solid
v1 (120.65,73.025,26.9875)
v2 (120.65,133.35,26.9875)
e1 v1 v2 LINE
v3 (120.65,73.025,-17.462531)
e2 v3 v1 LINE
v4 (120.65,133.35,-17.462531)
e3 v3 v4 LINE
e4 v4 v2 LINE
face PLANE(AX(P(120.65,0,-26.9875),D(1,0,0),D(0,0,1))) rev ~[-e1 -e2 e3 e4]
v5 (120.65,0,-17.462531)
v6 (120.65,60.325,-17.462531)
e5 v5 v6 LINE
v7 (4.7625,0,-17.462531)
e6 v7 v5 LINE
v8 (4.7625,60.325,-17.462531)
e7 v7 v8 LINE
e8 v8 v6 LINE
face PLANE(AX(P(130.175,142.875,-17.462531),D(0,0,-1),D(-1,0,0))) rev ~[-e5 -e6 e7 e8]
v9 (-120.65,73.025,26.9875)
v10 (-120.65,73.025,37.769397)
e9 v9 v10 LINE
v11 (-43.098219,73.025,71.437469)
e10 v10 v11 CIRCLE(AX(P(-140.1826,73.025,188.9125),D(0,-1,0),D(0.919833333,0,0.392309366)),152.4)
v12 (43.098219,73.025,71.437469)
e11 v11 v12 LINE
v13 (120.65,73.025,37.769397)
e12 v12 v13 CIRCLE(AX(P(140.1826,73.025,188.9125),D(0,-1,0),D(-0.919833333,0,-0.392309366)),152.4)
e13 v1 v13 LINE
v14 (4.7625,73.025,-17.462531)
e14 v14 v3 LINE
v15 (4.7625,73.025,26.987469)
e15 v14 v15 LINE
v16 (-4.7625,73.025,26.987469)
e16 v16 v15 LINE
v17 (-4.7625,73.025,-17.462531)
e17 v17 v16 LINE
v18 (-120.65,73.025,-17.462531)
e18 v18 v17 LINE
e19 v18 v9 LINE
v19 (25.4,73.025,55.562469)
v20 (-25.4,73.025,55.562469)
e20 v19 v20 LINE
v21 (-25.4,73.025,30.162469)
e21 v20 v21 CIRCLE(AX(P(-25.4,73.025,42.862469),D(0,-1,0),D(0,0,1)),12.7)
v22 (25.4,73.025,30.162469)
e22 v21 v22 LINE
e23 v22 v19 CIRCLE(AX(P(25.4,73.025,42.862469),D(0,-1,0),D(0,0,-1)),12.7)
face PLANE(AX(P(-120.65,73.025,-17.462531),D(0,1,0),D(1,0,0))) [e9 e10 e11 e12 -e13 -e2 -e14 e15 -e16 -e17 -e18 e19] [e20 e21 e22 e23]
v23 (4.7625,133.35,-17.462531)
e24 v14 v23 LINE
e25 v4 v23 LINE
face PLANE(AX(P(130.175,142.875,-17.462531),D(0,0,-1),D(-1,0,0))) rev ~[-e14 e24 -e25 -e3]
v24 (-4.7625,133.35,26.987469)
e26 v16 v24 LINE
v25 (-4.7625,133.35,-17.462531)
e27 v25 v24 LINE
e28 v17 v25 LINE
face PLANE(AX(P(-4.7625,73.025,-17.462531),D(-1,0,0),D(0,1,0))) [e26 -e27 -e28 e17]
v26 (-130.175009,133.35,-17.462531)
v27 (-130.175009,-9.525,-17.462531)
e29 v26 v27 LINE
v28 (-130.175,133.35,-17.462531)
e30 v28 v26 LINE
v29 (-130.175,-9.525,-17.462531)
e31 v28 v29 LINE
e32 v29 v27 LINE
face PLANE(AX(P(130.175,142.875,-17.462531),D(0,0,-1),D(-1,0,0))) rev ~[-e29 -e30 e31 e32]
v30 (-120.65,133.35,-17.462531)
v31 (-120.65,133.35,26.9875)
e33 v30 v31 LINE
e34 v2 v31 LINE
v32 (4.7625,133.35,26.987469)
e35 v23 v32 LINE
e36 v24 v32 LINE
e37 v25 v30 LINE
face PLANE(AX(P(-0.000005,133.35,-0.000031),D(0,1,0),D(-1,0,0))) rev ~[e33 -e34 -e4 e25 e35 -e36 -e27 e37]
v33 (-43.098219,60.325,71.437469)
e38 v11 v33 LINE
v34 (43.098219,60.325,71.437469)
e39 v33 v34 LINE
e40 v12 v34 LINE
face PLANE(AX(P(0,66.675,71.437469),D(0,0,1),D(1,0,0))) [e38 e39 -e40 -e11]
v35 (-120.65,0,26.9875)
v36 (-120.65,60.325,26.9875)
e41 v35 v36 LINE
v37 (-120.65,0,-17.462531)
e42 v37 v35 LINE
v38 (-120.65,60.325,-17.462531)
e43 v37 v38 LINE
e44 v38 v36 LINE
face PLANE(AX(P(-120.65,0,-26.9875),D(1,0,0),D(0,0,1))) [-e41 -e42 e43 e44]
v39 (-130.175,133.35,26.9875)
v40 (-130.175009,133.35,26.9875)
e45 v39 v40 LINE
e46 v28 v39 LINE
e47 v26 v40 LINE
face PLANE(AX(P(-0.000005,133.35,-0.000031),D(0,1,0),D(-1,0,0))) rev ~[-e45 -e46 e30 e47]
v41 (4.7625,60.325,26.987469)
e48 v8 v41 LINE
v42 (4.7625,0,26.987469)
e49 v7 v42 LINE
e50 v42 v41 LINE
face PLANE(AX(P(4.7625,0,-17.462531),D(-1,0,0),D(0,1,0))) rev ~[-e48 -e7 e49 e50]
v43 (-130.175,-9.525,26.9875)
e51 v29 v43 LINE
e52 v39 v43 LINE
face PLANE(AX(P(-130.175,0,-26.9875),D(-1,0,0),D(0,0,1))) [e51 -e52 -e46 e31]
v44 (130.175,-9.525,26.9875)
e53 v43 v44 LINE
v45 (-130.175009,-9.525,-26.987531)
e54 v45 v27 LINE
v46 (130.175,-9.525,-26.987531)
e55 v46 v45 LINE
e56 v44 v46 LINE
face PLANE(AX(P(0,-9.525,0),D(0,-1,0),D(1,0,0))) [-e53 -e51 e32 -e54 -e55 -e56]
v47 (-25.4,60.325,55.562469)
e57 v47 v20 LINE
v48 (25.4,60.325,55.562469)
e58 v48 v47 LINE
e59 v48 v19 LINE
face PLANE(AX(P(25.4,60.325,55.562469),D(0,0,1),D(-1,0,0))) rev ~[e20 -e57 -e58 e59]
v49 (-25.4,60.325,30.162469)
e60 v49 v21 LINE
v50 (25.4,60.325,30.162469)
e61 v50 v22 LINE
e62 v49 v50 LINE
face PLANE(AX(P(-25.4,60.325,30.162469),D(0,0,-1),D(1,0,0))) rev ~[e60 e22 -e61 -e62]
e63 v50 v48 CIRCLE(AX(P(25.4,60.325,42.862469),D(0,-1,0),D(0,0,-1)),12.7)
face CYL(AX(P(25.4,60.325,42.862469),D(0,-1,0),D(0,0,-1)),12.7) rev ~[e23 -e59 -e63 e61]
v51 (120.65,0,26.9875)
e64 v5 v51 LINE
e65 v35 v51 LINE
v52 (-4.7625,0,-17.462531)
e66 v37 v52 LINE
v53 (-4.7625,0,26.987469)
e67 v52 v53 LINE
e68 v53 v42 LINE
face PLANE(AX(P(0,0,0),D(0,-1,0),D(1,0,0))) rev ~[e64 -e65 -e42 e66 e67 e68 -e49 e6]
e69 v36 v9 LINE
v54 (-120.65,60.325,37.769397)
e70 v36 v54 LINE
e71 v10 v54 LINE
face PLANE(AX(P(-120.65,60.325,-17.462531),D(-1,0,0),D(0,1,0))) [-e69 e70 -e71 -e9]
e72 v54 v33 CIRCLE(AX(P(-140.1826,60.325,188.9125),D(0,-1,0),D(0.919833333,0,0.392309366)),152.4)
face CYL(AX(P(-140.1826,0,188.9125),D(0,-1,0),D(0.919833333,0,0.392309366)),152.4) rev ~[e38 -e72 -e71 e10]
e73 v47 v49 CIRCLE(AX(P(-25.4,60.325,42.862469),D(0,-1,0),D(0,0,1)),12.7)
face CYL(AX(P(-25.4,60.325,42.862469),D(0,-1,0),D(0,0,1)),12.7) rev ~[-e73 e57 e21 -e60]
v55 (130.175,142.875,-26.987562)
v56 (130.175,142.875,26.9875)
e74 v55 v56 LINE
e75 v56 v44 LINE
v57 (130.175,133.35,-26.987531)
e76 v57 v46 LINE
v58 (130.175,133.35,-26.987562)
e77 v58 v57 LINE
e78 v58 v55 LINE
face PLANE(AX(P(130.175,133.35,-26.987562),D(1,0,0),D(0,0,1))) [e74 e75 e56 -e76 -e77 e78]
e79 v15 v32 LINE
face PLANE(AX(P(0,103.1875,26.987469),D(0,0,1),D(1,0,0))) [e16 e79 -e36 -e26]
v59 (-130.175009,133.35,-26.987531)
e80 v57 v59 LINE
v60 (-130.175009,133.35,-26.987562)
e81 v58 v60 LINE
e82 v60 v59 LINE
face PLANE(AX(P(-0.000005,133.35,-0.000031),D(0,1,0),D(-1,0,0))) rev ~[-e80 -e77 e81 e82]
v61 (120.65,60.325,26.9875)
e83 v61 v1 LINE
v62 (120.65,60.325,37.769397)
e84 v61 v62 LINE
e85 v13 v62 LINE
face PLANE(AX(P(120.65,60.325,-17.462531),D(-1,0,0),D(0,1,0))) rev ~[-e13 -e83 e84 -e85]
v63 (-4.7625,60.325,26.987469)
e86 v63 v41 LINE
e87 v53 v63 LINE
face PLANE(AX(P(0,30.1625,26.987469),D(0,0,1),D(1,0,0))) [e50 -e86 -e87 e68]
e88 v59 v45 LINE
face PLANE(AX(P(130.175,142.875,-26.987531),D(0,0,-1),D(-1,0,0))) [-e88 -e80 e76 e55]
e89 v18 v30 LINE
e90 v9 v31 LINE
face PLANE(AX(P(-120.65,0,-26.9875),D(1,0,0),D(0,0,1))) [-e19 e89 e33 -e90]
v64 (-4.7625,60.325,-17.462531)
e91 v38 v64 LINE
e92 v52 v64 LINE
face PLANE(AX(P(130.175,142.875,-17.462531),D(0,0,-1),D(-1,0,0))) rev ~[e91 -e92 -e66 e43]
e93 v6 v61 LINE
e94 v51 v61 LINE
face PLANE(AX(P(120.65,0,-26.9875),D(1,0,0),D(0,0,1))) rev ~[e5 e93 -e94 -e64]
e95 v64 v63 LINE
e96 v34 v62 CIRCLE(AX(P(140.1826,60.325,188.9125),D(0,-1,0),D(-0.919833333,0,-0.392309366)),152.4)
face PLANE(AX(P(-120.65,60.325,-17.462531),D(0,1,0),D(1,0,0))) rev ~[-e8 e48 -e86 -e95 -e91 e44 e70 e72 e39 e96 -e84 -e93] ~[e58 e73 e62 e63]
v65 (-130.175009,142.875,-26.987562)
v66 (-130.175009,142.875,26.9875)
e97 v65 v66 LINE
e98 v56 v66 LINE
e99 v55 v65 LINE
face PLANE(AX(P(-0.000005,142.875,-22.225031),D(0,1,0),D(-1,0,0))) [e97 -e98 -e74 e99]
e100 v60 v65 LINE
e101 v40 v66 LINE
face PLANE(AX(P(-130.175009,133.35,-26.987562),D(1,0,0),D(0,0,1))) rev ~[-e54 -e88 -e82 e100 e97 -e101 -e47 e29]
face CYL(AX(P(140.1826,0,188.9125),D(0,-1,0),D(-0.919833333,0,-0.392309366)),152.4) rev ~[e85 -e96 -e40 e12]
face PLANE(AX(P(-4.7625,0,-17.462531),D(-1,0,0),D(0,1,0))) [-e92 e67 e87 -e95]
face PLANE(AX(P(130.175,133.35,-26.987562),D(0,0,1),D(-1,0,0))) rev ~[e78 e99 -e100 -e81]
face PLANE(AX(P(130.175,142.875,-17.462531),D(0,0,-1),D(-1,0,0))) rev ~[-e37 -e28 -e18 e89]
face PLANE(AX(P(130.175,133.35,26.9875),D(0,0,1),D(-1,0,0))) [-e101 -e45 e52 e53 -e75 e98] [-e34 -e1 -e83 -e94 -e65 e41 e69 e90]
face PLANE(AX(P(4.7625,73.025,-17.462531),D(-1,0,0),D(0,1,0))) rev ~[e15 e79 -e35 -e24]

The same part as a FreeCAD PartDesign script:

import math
import FreeCAD as App
import Part
import Sketcher

V = App.Vector
Q = App.Units.Quantity

doc = App.newDocument("Part")
body = doc.addObject("PartDesign::Body", "Body")

sketch1 = body.newObject("Sketcher::SketchObject", "Sketch")
sketch1.AttachmentSupport = (doc.getObject("XZ_Plane"), [""])
sketch1.MapMode = "FlatFace"
sketch1.addGeometry([
    Part.LineSegment(V(-130.175, 26.9875, 0), V(-130.175, -26.9875, 0)),
    Part.LineSegment(V(-130.175, -26.9875, 0), V(130.175, -26.9875, 0)),
    Part.LineSegment(V(130.175, -26.9875, 0), V(130.175, 26.9875, 0)),
    Part.LineSegment(V(130.175, 26.9875, 0), V(-130.175, 26.9875, 0)),
], False)
sketch1.addConstraint([
    Sketcher.Constraint("Coincident", 0, 2, 1, 1),
    Sketcher.Constraint("Coincident", 1, 2, 2, 1),
    Sketcher.Constraint("Coincident", 2, 2, 3, 1),
    Sketcher.Constraint("Coincident", 3, 2, 0, 1),
    Sketcher.Constraint("Vertical", 0),
    Sketcher.Constraint("Horizontal", 1),
    Sketcher.Constraint("Vertical", 2),
    Sketcher.Constraint("Horizontal", 3),
    Sketcher.Constraint("Symmetric", 0, 2, 2, 2, -1, 1),
    Sketcher.Constraint("DistanceX", 1, 1, 1, 2, Q("10.25 in")),
    Sketcher.Constraint("DistanceY", 0, 2, 0, 1, Q("2.125 in")),
])
pad1 = body.newObject("PartDesign::Pad", "Pad")
pad1.Profile = sketch1
pad1.Length = Q("0.375 in")

sketch2 = body.newObject("Sketcher::SketchObject", "Sketch001")
sketch2.AttachmentSupport = (doc.getObject("XZ_Plane"), [""])
sketch2.MapMode = "FlatFace"
sketch2.addGeometry([
    Part.LineSegment(V(130.175, 26.9875, 0), V(130.175, -26.9875, 0)),
    Part.LineSegment(V(130.175, -26.9875, 0), V(120.65, -26.9875, 0)),
    Part.LineSegment(V(120.65, -26.9875, 0), V(120.65, 26.9875, 0)),
    Part.LineSegment(V(120.65, 26.9875, 0), V(130.175, 26.9875, 0)),
    Part.LineSegment(V(-120.65, 26.9875, 0), V(-120.65, -26.9875, 0)),
    Part.LineSegment(V(-120.65, -26.9875, 0), V(-130.175, -26.9875, 0)),
    Part.LineSegment(V(-130.175, -26.9875, 0), V(-130.175, 26.9875, 0)),
    Part.LineSegment(V(-130.175, 26.9875, 0), V(-120.65, 26.9875, 0)),
], False)
sketch2.addConstraint([
    Sketcher.Constraint("Coincident", 0, 2, 1, 1),
    Sketcher.Constraint("Coincident", 1, 2, 2, 1),
    Sketcher.Constraint("Coincident", 2, 2, 3, 1),
    Sketcher.Constraint("Coincident", 3, 2, 0, 1),
    Sketcher.Constraint("Coincident", 4, 2, 5, 1),
    Sketcher.Constraint("Coincident", 5, 2, 6, 1),
    Sketcher.Constraint("Coincident", 6, 2, 7, 1),
    Sketcher.Constraint("Coincident", 7, 2, 4, 1),
    Sketcher.Constraint("Vertical", 0),
    Sketcher.Constraint("Horizontal", 1),
    Sketcher.Constraint("Vertical", 2),
    Sketcher.Constraint("Horizontal", 3),
    Sketcher.Constraint("Vertical", 4),
    Sketcher.Constraint("Horizontal", 5),
    Sketcher.Constraint("Vertical", 6),
    Sketcher.Constraint("Horizontal", 7),
    Sketcher.Constraint("Symmetric", 2, 2, 4, 2, -1, 1),
    Sketcher.Constraint("Symmetric", 0, 2, 6, 2, -1, 1),
    Sketcher.Constraint("Horizontal", 1, 2, 4, 2),
    Sketcher.Constraint("DistanceX", 4, 2, 1, 2, Q("9.5 in")),
    Sketcher.Constraint("DistanceX", 1, 2, 1, 1, Q("0.375 in")),
    Sketcher.Constraint("DistanceY", 0, 2, 0, 1, Q("2.125 in")),
])
pad2 = body.newObject("PartDesign::Pad", "Pad001")
pad2.Profile = sketch2
pad2.Length = Q("5.25 in")
pad2.Reversed = True

sketch3 = body.newObject("Sketcher::SketchObject", "Sketch002")
sketch3.AttachmentSupport = (doc.getObject("XZ_Plane"), [""])
sketch3.MapMode = "FlatFace"
sketch3.AttachmentOffset = App.Placement(V(0, 0, -5.25 * 25.4), App.Rotation())
sketch3.addGeometry([
    Part.LineSegment(V(130.175, 26.9875, 0), V(130.175, -26.987562, 0)),
    Part.LineSegment(V(130.175, -26.987562, 0), V(-130.175009, -26.987562, 0)),
    Part.LineSegment(V(-130.175009, -26.987562, 0), V(-130.175009, 26.9875, 0)),
    Part.LineSegment(V(-130.175009, 26.9875, 0), V(130.175, 26.9875, 0)),
], False)
sketch3.addConstraint([
    Sketcher.Constraint("Coincident", 0, 2, 1, 1),
    Sketcher.Constraint("Coincident", 1, 2, 2, 1),
    Sketcher.Constraint("Coincident", 2, 2, 3, 1),
    Sketcher.Constraint("Coincident", 3, 2, 0, 1),
    Sketcher.Constraint("Vertical", 0),
    Sketcher.Constraint("Horizontal", 1),
    Sketcher.Constraint("Vertical", 2),
    Sketcher.Constraint("Horizontal", 3),
    Sketcher.Constraint("DistanceX", -1, 1, 0, 2, Q("5.125 in")),
    Sketcher.Constraint("DistanceY", -1, 1, 2, 2, Q("1.0625 in")),
    Sketcher.Constraint("DistanceX", 1, 2, 1, 1, Q("260.350009 mm")),
    Sketcher.Constraint("DistanceY", 0, 2, 0, 1, Q("53.975062 mm")),
])
pad3 = body.newObject("PartDesign::Pad", "Pad002")
pad3.Profile = sketch3
pad3.Length = Q("0.375 in")
pad3.Reversed = True

sketch4 = body.newObject("Sketcher::SketchObject", "Sketch003")
sketch4.AttachmentSupport = (doc.getObject("XZ_Plane"), [""])
sketch4.MapMode = "FlatFace"
sketch4.AttachmentOffset = App.Placement(V(0, 0, -5.625 * 25.4), App.Rotation())
sketch4.addGeometry([
    Part.LineSegment(V(130.175, -17.462531, 0), V(130.175, -26.987531, 0)),
    Part.LineSegment(V(130.175, -26.987531, 0), V(-130.175009, -26.987531, 0)),
    Part.LineSegment(V(-130.175009, -26.987531, 0), V(-130.175009, -17.462531, 0)),
    Part.LineSegment(V(-130.175009, -17.462531, 0), V(130.175, -17.462531, 0)),
], False)
sketch4.addConstraint([
    Sketcher.Constraint("Coincident", 0, 2, 1, 1),
    Sketcher.Constraint("Coincident", 1, 2, 2, 1),
    Sketcher.Constraint("Coincident", 2, 2, 3, 1),
    Sketcher.Constraint("Coincident", 3, 2, 0, 1),
    Sketcher.Constraint("Vertical", 0),
    Sketcher.Constraint("Horizontal", 1),
    Sketcher.Constraint("Vertical", 2),
    Sketcher.Constraint("Horizontal", 3),
    Sketcher.Constraint("DistanceY", 0, 2, 0, 1, Q("0.375 in")),
    Sketcher.Constraint("DistanceX", -1, 1, 0, 2, Q("5.125 in")),
    Sketcher.Constraint("DistanceX", 1, 2, 1, 1, Q("260.350009 mm")),
    Sketcher.Constraint("DistanceY", 0, 2, -1, 1, Q("26.987531 mm")),
])
pad4 = body.newObject("PartDesign::Pad", "Pad003")
pad4.Profile = sketch4
pad4.Length = Q("6 in")

sketch5 = body.newObject("Sketcher::SketchObject", "Sketch004")
sketch5.AttachmentSupport = (doc.getObject("XY_Plane"), [""])
sketch5.MapMode = "FlatFace"
sketch5.AttachmentOffset = App.Placement(V(0, 0, -17.462531), App.Rotation())
sketch5.addGeometry([
    Part.LineSegment(V(-120.65, 73.025, 0), V(-120.65, 60.325, 0)),
    Part.LineSegment(V(-120.65, 60.325, 0), V(120.65, 60.325, 0)),
    Part.LineSegment(V(120.65, 60.325, 0), V(120.65, 73.025, 0)),
    Part.LineSegment(V(120.65, 73.025, 0), V(-120.65, 73.025, 0)),
], False)
sketch5.addConstraint([
    Sketcher.Constraint("Coincident", 0, 2, 1, 1),
    Sketcher.Constraint("Coincident", 1, 2, 2, 1),
    Sketcher.Constraint("Coincident", 2, 2, 3, 1),
    Sketcher.Constraint("Coincident", 3, 2, 0, 1),
    Sketcher.Constraint("Vertical", 0),
    Sketcher.Constraint("Horizontal", 1),
    Sketcher.Constraint("Vertical", 2),
    Sketcher.Constraint("Horizontal", 3),
    Sketcher.Constraint("DistanceX", 1, 1, 1, 2, Q("9.5 in")),
    Sketcher.Constraint("DistanceY", 0, 2, 0, 1, Q("0.5 in")),
    Sketcher.Constraint("DistanceX", 0, 2, -1, 1, Q("4.75 in")),
    Sketcher.Constraint("DistanceY", -1, 1, 0, 2, Q("2.375 in")),
])
pad5 = body.newObject("PartDesign::Pad", "Pad004")
pad5.Profile = sketch5
pad5.Length = Q("3.5 in")

sketch6 = body.newObject("Sketcher::SketchObject", "Sketch005")
sketch6.AttachmentSupport = (doc.getObject("XZ_Plane"), [""])
sketch6.MapMode = "FlatFace"
sketch6.AttachmentOffset = App.Placement(V(0, 0, -2.375 * 25.4), App.Rotation())
sketch6.addGeometry([
    Part.LineSegment(V(25.4, 55.562469, 0), V(-25.4, 55.562469, 0)),
    Part.ArcOfCircle(Part.Circle(V(-25.4, 42.862469, 0), V(0, 0, 1), 12.7), math.radians(90), math.radians(270)),
    Part.LineSegment(V(-25.4, 30.162469, 0), V(25.4, 30.162469, 0)),
    Part.ArcOfCircle(Part.Circle(V(25.4, 42.862469, 0), V(0, 0, 1), 12.7), math.radians(-90), math.radians(90)),
], False)
sketch6.addConstraint([
    Sketcher.Constraint("Tangent", 0, 2, 1, 1),
    Sketcher.Constraint("Tangent", 1, 2, 2, 1),
    Sketcher.Constraint("Tangent", 2, 2, 3, 1),
    Sketcher.Constraint("Tangent", 3, 2, 0, 1),
    Sketcher.Constraint("Horizontal", 0),
    Sketcher.Constraint("Horizontal", 2),
    Sketcher.Constraint("Radius", 1, Q("0.5 in")),
    Sketcher.Constraint("DistanceX", 0, 2, 0, 1, Q("2 in")),
    Sketcher.Constraint("DistanceX", 1, 3, -1, 1, Q("1 in")),
    Sketcher.Constraint("DistanceY", -1, 1, 1, 3, Q("42.862469 mm")),
])
pocket1 = body.newObject("PartDesign::Pocket", "Pocket")
pocket1.Profile = sketch6
pocket1.Length = Q("0.5 in")

sketch7 = body.newObject("Sketcher::SketchObject", "Sketch006")
sketch7.AttachmentSupport = (doc.getObject("XZ_Plane"), [""])
sketch7.MapMode = "FlatFace"
sketch7.addGeometry([
    Part.ArcOfCircle(Part.Circle(V(140.1826, 188.9125, 0), V(0, 0, 1), 152.4), math.radians(156.901729), math.radians(203.098271)),
    Part.ArcOfCircle(Part.Circle(V(-140.1826, 188.9125, 0), V(0, 0, 1), 152.4), math.radians(23.098271), math.radians(336.901729)),
    Part.ArcOfCircle(Part.Circle(V(-140.1826, 188.9125, 0), V(0, 0, 1), 152.4), math.radians(-23.098271), math.radians(23.098271)),
    Part.ArcOfCircle(Part.Circle(V(140.1826, 188.9125, 0), V(0, 0, 1), 152.4), math.radians(-156.901729), math.radians(156.901729)),
], False)
sketch7.addConstraint([
    Sketcher.Constraint("Coincident", 0, 1, 1, 1),
    Sketcher.Constraint("Coincident", 1, 2, 0, 2),
    Sketcher.Constraint("Coincident", 2, 1, 3, 1),
    Sketcher.Constraint("Coincident", 3, 2, 2, 2),
    Sketcher.Constraint("Coincident", 2, 3, 1, 3),
    Sketcher.Constraint("Coincident", 3, 3, 0, 3),
    Sketcher.Constraint("Coincident", 2, 1, 1, 2),
    Sketcher.Constraint("Equal", 0, 1),
    Sketcher.Constraint("Symmetric", 0, 3, 1, 3, -2),
    Sketcher.Constraint("Radius", 0, Q("6 in")),
    Sketcher.Constraint("DistanceX", -1, 1, 0, 3, Q("5.519 in")),
    Sketcher.Constraint("DistanceY", -1, 1, 0, 3, Q("7.4375 in")),
])
pocket2 = body.newObject("PartDesign::Pocket", "Pocket001")
pocket2.Profile = sketch7
pocket2.Length = Q("4.02 in")

sketch8 = body.newObject("Sketcher::SketchObject", "Sketch007")
sketch8.AttachmentSupport = (doc.getObject("XY_Plane"), [""])
sketch8.MapMode = "FlatFace"
sketch8.AttachmentOffset = App.Placement(V(0, 0, -17.462531), App.Rotation())
sketch8.addGeometry([
    Part.LineSegment(V(-4.7625, 133.35, 0), V(-4.7625, 73.025, 0)),
    Part.LineSegment(V(-4.7625, 73.025, 0), V(4.7625, 73.025, 0)),
    Part.LineSegment(V(4.7625, 73.025, 0), V(4.7625, 133.35, 0)),
    Part.LineSegment(V(4.7625, 133.35, 0), V(-4.7625, 133.35, 0)),
], False)
sketch8.addConstraint([
    Sketcher.Constraint("Coincident", 0, 2, 1, 1),
    Sketcher.Constraint("Coincident", 1, 2, 2, 1),
    Sketcher.Constraint("Coincident", 2, 2, 3, 1),
    Sketcher.Constraint("Coincident", 3, 2, 0, 1),
    Sketcher.Constraint("Vertical", 0),
    Sketcher.Constraint("Horizontal", 1),
    Sketcher.Constraint("Vertical", 2),
    Sketcher.Constraint("Horizontal", 3),
    Sketcher.Constraint("DistanceX", 1, 1, 1, 2, Q("0.375 in")),
    Sketcher.Constraint("DistanceY", 0, 2, 0, 1, Q("2.375 in")),
    Sketcher.Constraint("DistanceY", -1, 1, 2, 2, Q("5.25 in")),
    Sketcher.Constraint("DistanceX", 0, 2, -1, 1, Q("0.1875 in")),
])
pad6 = body.newObject("PartDesign::Pad", "Pad005")
pad6.Profile = sketch8
pad6.Length = Q("1.75 in")

sketch9 = body.newObject("Sketcher::SketchObject", "Sketch008")
sketch9.AttachmentSupport = (doc.getObject("XY_Plane"), [""])
sketch9.MapMode = "FlatFace"
sketch9.AttachmentOffset = App.Placement(V(0, 0, -17.462531), App.Rotation())
sketch9.addGeometry([
    Part.LineSegment(V(-4.7625, 60.325, 0), V(-4.7625, 0, 0)),
    Part.LineSegment(V(-4.7625, 0, 0), V(4.7625, 0, 0)),
    Part.LineSegment(V(4.7625, 0, 0), V(4.7625, 60.325, 0)),
    Part.LineSegment(V(4.7625, 60.325, 0), V(-4.7625, 60.325, 0)),
], False)
sketch9.addConstraint([
    Sketcher.Constraint("Coincident", 0, 2, 1, 1),
    Sketcher.Constraint("Coincident", 1, 2, 2, 1),
    Sketcher.Constraint("Coincident", 2, 2, 3, 1),
    Sketcher.Constraint("Coincident", 3, 2, 0, 1),
    Sketcher.Constraint("Vertical", 0),
    Sketcher.Constraint("Horizontal", 1),
    Sketcher.Constraint("Vertical", 2),
    Sketcher.Constraint("Horizontal", 3),
    Sketcher.Constraint("Symmetric", 0, 2, 1, 2, -1, 1),
    Sketcher.Constraint("DistanceX", 1, 1, 1, 2, Q("0.375 in")),
    Sketcher.Constraint("DistanceY", 0, 2, 0, 1, Q("2.375 in")),
])
pad7 = body.newObject("PartDesign::Pad", "Pad006")
pad7.Profile = sketch9
pad7.Length = Q("1.75 in")

doc.recompute()
